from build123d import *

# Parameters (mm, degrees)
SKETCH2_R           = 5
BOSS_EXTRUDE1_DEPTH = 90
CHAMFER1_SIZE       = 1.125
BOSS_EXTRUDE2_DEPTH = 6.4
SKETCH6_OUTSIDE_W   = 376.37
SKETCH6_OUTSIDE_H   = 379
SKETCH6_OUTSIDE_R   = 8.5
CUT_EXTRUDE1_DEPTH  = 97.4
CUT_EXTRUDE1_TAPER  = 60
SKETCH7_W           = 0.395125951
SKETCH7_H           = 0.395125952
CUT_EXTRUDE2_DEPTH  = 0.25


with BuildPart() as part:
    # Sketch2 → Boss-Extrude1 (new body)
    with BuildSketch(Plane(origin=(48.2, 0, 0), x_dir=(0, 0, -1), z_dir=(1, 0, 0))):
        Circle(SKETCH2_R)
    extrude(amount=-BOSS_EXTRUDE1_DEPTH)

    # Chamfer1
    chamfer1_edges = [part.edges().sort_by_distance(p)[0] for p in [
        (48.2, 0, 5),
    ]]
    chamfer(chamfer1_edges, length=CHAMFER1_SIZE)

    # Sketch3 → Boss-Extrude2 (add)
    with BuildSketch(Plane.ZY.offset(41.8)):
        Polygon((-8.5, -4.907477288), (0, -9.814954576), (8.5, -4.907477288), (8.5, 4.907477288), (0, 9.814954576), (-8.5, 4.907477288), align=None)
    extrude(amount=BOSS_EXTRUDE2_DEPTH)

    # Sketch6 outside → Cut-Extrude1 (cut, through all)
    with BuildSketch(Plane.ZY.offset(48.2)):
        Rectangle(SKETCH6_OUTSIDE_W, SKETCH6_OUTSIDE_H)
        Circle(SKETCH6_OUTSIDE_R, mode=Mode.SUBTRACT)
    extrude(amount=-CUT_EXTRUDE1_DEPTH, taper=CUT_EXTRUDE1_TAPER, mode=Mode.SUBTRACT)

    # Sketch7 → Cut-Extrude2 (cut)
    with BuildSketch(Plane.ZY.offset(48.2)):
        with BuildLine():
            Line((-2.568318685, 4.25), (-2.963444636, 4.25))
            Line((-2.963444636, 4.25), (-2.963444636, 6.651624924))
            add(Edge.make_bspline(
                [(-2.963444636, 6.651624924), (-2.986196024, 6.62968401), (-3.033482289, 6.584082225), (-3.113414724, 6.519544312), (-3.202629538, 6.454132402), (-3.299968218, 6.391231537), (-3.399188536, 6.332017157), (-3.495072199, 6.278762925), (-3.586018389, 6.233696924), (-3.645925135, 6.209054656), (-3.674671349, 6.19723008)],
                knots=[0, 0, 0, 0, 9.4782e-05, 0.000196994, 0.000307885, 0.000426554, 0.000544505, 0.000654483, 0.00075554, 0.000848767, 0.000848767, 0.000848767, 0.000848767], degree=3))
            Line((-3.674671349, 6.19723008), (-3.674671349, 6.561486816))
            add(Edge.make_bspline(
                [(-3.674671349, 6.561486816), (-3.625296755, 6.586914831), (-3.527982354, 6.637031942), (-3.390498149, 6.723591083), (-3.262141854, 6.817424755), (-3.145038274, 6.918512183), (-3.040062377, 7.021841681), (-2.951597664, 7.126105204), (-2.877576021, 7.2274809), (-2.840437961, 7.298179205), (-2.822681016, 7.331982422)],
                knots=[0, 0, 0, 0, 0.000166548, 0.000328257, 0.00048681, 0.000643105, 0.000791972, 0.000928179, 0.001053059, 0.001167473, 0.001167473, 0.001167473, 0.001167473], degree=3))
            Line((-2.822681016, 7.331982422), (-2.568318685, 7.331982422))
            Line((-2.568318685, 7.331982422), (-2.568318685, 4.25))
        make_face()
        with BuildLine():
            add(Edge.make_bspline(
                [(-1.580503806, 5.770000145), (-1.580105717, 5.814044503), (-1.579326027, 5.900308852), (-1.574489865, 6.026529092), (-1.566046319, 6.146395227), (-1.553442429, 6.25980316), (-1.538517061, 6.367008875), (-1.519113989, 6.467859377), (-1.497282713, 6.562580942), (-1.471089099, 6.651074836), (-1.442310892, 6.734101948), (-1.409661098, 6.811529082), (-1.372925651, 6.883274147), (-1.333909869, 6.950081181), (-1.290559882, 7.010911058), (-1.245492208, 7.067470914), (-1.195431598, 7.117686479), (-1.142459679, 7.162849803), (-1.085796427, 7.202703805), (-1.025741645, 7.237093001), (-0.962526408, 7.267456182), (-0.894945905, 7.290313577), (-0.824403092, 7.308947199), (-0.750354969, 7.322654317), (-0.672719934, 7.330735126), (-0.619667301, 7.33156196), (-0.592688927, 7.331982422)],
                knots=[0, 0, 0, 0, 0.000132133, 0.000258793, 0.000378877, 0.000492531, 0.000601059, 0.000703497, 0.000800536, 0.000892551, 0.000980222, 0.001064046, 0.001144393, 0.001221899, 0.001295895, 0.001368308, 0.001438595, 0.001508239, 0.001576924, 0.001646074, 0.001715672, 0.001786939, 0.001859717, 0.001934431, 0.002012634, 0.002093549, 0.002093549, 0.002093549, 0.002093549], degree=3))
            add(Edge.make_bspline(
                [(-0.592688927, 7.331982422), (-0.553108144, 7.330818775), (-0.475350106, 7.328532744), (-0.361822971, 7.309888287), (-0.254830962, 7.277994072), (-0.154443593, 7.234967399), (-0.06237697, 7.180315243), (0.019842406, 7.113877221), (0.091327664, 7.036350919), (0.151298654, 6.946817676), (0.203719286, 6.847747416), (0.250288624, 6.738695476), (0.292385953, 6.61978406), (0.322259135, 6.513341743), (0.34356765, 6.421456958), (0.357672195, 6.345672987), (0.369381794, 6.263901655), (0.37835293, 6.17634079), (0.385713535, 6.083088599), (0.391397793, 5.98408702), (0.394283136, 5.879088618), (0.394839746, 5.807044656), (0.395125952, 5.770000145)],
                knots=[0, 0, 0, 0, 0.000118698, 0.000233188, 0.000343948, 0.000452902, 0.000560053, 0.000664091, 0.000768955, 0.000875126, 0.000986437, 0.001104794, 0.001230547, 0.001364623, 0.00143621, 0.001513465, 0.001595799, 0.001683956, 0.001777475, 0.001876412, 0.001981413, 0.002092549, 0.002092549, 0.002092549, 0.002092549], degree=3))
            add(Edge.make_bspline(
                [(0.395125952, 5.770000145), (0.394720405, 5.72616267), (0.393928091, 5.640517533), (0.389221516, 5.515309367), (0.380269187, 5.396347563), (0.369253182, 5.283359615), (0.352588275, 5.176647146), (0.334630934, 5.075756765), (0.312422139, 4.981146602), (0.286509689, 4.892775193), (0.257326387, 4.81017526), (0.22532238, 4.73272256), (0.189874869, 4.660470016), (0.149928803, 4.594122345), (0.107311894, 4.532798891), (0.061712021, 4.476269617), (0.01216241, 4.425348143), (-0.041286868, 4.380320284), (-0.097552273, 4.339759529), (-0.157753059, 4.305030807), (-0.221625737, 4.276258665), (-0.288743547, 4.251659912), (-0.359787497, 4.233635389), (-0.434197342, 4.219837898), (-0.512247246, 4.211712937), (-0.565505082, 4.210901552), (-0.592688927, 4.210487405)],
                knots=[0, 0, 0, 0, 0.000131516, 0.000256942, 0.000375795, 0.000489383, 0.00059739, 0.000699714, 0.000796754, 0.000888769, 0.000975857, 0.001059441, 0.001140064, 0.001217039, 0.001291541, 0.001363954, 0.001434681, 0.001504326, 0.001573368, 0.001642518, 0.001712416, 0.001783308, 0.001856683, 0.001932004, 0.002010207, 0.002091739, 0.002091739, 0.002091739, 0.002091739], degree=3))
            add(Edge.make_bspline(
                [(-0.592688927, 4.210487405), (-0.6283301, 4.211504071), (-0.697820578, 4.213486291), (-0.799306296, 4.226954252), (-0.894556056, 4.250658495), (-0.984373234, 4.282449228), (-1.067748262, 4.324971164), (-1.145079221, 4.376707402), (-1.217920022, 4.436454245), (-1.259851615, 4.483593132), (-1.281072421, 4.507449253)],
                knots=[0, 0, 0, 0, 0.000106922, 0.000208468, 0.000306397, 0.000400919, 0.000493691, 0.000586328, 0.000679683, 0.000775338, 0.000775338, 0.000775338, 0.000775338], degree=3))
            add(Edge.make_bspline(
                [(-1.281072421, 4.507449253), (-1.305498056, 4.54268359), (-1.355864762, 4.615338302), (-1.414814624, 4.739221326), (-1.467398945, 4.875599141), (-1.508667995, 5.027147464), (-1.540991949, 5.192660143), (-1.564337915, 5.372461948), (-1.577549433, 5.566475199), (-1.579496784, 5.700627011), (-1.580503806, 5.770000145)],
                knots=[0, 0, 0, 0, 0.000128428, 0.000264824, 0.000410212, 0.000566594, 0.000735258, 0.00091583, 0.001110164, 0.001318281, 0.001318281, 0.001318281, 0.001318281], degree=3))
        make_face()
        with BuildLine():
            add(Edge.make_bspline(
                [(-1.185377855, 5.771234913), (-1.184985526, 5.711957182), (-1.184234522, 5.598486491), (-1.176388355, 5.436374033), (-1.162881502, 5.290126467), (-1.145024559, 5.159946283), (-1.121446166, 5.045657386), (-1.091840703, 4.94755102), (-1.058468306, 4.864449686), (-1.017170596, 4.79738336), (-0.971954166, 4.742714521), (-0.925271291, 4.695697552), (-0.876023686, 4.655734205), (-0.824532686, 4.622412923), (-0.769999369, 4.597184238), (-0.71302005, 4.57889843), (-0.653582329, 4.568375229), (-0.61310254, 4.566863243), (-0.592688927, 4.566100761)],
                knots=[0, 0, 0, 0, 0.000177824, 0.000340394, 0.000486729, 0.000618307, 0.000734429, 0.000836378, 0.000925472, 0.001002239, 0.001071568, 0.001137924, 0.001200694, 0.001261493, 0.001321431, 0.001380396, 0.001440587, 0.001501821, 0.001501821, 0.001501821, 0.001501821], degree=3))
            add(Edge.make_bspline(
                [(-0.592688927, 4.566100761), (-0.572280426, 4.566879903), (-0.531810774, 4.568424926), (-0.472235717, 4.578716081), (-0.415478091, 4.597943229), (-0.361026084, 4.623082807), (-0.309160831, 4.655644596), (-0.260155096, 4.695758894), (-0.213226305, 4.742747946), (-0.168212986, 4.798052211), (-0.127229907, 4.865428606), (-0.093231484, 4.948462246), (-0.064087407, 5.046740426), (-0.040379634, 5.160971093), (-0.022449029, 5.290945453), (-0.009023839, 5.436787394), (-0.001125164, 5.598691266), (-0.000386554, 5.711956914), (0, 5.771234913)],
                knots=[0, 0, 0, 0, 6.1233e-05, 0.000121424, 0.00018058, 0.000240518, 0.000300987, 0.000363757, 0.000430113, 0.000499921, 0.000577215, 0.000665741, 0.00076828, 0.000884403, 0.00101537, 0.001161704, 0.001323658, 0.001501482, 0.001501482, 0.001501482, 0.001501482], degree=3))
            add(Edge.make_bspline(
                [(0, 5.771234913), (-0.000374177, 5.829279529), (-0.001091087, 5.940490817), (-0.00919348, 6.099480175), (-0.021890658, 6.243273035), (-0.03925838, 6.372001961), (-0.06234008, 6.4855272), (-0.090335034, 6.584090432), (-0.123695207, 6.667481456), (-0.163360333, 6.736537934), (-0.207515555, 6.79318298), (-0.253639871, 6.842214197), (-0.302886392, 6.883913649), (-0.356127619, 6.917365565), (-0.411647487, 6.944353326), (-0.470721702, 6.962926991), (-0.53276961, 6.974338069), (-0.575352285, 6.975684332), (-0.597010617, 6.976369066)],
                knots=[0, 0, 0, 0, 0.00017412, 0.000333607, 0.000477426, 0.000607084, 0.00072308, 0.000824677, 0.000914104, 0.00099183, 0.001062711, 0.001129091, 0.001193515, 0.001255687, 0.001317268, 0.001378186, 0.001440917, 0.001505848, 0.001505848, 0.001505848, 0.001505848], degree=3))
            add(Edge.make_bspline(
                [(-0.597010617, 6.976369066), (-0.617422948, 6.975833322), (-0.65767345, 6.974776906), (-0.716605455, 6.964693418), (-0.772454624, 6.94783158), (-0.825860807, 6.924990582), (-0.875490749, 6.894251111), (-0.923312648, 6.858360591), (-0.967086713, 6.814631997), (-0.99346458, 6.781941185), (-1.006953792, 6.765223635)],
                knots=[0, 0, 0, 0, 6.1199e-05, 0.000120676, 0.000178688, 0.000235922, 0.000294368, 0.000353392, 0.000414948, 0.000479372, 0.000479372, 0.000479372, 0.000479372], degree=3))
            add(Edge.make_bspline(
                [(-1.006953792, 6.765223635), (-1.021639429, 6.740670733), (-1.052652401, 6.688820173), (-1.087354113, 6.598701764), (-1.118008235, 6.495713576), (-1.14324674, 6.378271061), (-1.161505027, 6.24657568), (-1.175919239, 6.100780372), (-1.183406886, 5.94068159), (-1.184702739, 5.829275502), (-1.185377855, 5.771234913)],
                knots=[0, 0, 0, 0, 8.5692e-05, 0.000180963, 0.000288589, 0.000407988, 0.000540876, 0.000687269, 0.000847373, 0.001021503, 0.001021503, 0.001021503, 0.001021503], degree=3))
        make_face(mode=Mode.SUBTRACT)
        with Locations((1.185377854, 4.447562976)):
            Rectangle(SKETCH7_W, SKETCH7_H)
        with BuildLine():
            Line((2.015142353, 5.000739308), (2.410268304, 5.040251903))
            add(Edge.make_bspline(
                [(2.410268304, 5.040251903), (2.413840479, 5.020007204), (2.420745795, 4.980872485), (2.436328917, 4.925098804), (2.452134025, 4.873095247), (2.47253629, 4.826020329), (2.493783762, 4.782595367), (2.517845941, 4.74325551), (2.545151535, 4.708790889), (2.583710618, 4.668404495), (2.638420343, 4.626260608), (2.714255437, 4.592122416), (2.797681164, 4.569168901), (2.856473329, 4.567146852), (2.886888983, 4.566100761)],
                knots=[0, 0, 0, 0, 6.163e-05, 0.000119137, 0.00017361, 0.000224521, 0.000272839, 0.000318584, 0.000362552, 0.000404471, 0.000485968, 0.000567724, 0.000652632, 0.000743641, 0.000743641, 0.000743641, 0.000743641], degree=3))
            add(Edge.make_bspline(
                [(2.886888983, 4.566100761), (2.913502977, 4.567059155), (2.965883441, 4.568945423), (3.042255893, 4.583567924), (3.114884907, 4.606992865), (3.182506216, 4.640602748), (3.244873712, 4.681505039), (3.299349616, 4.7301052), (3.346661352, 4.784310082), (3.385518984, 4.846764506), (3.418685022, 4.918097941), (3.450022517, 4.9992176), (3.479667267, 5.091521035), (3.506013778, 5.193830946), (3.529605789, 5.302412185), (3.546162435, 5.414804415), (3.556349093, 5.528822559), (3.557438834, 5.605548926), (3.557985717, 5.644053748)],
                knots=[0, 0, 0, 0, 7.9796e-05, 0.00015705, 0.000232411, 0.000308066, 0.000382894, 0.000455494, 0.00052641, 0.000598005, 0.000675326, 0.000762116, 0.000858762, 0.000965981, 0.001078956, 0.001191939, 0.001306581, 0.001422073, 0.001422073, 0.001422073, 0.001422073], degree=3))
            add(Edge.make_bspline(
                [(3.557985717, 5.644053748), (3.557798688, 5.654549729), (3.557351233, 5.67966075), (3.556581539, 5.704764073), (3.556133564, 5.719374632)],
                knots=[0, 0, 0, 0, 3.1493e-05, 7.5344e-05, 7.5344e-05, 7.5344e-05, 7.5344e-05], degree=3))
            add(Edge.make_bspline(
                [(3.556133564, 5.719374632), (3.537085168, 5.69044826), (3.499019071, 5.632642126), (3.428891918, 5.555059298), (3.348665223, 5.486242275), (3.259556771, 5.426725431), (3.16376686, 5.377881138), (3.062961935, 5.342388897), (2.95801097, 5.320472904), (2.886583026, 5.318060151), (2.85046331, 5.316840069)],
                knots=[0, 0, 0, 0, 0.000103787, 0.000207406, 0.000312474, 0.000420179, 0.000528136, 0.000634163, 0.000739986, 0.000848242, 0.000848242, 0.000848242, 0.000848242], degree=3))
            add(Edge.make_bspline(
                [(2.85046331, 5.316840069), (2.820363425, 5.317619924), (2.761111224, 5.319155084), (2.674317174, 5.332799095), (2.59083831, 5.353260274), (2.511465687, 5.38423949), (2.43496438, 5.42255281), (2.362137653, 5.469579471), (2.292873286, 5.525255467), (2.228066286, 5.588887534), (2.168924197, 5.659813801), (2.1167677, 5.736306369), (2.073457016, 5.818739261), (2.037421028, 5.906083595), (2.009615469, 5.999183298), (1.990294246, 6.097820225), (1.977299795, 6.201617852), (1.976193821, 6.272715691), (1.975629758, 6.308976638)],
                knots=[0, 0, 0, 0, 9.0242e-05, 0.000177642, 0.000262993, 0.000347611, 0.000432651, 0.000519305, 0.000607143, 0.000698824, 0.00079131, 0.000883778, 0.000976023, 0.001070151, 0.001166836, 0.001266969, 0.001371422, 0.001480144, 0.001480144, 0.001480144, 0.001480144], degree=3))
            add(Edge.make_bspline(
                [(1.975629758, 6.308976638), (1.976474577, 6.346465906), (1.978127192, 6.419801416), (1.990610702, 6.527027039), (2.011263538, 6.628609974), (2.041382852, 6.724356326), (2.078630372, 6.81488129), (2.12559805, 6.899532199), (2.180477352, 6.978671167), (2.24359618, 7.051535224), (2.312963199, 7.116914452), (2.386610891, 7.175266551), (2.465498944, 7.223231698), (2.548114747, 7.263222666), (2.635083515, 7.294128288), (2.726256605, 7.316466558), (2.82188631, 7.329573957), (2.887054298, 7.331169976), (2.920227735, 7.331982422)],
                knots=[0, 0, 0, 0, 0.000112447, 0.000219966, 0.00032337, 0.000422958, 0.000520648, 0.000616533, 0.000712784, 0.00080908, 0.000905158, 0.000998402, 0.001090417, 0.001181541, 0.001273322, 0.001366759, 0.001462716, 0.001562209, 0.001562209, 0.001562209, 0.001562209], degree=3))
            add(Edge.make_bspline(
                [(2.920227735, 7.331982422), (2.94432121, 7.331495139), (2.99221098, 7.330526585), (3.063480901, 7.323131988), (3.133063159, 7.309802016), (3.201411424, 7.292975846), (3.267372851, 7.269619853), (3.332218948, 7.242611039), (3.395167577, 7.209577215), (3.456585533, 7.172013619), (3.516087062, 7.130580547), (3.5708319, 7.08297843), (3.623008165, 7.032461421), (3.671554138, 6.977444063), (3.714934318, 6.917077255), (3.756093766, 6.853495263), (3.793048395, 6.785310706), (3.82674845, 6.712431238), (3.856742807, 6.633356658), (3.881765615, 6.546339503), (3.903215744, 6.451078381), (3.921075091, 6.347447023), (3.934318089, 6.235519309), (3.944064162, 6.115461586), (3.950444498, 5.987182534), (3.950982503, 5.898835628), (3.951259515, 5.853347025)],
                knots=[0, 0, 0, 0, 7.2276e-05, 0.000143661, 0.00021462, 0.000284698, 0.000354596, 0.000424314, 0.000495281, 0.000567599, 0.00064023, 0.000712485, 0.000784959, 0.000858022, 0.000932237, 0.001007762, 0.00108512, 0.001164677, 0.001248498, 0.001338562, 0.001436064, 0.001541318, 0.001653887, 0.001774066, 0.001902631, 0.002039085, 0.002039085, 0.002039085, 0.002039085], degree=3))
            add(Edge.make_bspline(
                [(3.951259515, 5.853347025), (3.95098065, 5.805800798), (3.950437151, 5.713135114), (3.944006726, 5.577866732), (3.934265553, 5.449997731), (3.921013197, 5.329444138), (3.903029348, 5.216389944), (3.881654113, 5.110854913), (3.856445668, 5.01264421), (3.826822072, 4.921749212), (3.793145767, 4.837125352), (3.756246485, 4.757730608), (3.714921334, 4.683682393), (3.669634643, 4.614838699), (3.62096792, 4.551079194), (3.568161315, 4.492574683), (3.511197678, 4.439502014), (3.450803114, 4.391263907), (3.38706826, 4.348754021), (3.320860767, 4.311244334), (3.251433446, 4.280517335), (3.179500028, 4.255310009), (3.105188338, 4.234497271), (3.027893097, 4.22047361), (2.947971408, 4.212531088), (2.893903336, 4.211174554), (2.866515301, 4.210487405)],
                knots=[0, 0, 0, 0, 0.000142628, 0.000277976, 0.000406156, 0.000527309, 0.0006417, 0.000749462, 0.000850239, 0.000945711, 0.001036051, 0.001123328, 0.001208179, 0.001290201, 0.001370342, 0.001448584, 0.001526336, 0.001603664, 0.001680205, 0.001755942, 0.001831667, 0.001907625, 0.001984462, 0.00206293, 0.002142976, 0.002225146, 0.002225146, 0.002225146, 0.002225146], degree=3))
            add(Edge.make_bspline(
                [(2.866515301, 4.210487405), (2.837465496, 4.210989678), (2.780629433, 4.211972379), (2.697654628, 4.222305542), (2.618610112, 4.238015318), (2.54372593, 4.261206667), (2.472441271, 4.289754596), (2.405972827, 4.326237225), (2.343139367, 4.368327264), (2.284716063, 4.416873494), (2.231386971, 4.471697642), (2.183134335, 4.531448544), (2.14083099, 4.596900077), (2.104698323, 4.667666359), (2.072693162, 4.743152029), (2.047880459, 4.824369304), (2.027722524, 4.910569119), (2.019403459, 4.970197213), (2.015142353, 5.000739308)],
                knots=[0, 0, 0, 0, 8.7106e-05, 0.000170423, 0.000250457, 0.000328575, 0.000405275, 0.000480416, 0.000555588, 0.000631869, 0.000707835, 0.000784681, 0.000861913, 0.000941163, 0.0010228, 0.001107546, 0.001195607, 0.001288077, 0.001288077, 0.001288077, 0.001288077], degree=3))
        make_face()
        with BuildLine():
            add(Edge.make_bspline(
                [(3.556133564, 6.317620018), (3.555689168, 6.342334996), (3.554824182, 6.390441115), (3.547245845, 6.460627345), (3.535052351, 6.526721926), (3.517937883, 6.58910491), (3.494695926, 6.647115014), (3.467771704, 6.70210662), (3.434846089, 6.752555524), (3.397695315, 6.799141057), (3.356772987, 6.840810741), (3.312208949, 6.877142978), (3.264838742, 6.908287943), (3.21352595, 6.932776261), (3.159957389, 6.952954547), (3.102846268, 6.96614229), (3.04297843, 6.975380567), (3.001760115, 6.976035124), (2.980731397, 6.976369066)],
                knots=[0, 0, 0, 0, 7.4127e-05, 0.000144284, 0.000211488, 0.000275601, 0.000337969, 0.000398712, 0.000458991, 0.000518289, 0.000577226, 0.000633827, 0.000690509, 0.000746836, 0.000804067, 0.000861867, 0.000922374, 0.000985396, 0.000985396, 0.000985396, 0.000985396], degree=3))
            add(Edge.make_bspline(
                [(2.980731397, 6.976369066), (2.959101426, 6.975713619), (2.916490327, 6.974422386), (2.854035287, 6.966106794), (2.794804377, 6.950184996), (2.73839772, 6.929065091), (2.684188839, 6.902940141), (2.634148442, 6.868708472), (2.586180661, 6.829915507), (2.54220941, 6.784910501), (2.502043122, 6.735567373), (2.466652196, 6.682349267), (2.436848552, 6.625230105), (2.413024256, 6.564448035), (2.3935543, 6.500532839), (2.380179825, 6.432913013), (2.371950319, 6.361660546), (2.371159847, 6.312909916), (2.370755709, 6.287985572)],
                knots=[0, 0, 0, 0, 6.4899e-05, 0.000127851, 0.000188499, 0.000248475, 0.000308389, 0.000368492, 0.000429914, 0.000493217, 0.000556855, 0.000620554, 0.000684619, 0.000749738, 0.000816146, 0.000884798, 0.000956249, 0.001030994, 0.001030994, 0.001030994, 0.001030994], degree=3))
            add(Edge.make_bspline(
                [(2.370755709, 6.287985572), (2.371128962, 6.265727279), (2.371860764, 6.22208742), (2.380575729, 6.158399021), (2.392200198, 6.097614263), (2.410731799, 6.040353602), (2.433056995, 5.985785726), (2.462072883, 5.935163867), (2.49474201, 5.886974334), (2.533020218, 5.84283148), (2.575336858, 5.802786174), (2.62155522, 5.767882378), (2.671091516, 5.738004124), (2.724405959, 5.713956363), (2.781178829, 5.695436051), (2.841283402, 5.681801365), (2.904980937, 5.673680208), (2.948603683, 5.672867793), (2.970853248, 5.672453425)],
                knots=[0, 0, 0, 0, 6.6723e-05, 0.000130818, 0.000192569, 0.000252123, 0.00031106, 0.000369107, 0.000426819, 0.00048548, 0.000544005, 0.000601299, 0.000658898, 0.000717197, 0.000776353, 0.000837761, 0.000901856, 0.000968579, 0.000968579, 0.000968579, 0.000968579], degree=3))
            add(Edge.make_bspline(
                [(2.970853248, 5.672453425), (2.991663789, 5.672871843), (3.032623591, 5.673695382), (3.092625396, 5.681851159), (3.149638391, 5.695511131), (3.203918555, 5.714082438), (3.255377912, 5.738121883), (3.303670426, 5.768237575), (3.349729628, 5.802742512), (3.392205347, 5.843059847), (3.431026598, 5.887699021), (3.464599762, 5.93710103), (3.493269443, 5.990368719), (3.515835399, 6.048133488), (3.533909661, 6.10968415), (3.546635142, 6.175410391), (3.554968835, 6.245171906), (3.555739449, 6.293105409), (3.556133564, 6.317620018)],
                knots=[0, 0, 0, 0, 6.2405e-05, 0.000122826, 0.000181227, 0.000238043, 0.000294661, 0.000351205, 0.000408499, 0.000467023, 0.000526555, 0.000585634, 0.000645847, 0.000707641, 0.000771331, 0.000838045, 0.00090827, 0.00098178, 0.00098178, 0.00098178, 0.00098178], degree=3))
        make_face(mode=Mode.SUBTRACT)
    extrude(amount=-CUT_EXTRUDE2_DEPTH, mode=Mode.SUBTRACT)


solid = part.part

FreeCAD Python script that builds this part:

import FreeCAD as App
import Part
import Sketcher
Q = App.Units.Quantity


def edges_at(feature, points):
    """Names of the edges that pass closest to the given points."""
    edges = feature.Shape.Edges
    near = lambda p: min(range(len(edges)), key=lambda i: edges[i].distToShape(Part.Vertex(*p))[0])
    return sorted({f"Edge{near(p) + 1}" for p in points})

doc = App.newDocument("Part")
body = doc.addObject("PartDesign::Body", "Body")

# Sketch on YZ plane
sketch1 = body.newObject("Sketcher::SketchObject", "Sketch")
sketch1.AttachmentSupport = (doc.getObject("YZ_Plane"), [""])
sketch1.MapMode = "FlatFace"
sketch1.AttachmentOffset = App.Placement(App.Vector(0, 0, 48.2), App.Rotation())
sketch1.addGeometry(Part.Circle(App.Vector(0, 0, 0), App.Vector(0, 0, 1), 5), False)
sketch1.addConstraint(Sketcher.Constraint("Coincident", 0, 3, -1, 1))
sketch1.addConstraint(Sketcher.Constraint("Diameter", 0, 10.0))
pad1 = body.newObject("PartDesign::Pad", "Pad")
pad1.Profile = sketch1
pad1.Length = 90
pad1.Reversed = True
doc.recompute()

chamfer = body.newObject("PartDesign::Chamfer", "Chamfer")
chamfer.Base = (pad1, edges_at(pad1, [(48.2, 0, 5)]))
chamfer.Size = 1.125

# Sketch on YZ plane
sketch2 = body.newObject("Sketcher::SketchObject", "Sketch001")
sketch2.AttachmentSupport = (doc.getObject("YZ_Plane"), [""])
sketch2.MapMode = "FlatFace"
sketch2.AttachmentOffset = App.Placement(App.Vector(0, 0, -41.8), App.Rotation())
sketch2.addGeometry(Part.LineSegment(App.Vector(-5, -8, 0), App.Vector(-10, 0, 0)), False)
sketch2.addGeometry(Part.LineSegment(App.Vector(-10, 0, 0), App.Vector(-5, 8, 0)), False)
sketch2.addGeometry(Part.LineSegment(App.Vector(-5, 8, 0), App.Vector(5, 8, 0)), False)
sketch2.addGeometry(Part.LineSegment(App.Vector(5, 8, 0), App.Vector(10, 0, 0)), False)
sketch2.addGeometry(Part.LineSegment(App.Vector(10, 0, 0), App.Vector(5, -8, 0)), False)
sketch2.addGeometry(Part.LineSegment(App.Vector(5, -8, 0), App.Vector(-5, -8, 0)), False)
sketch2.addConstraint(Sketcher.Constraint("Coincident", 0, 2, 1, 1))
sketch2.addConstraint(Sketcher.Constraint("Coincident", 1, 2, 2, 1))
sketch2.addConstraint(Sketcher.Constraint("Coincident", 2, 2, 3, 1))
sketch2.addConstraint(Sketcher.Constraint("Coincident", 3, 2, 4, 1))
sketch2.addConstraint(Sketcher.Constraint("Coincident", 4, 2, 5, 1))
sketch2.addConstraint(Sketcher.Constraint("Coincident", 5, 2, 0, 1))
sketch2.addConstraint(Sketcher.Constraint("Horizontal", 2))
sketch2.addConstraint(Sketcher.Constraint("Horizontal", 5))
sketch2.addConstraint(Sketcher.Constraint("Symmetric", 0, 2, 3, 2, -1, 1))
sketch2.addConstraint(Sketcher.Constraint("Symmetric", 1, 2, 4, 2, -1, 1))
sketch2.addConstraint(Sketcher.Constraint("PointOnObject", 0, 2, -1))
sketch2.addConstraint(Sketcher.Constraint("Parallel", 0, 3))
sketch2.addConstraint(Sketcher.Constraint("Vertical", 2, 2, 4, 2))
sketch2.addConstraint(Sketcher.Constraint("Angle", 0, Q("120 deg")))
sketch2.addConstraint(Sketcher.Constraint("DistanceY", 4, 2, 2, 2, 17.0))
sketch2.addConstraint(Sketcher.Constraint("DistanceX", 2, 1, 2, 2, 9.814955))
pad2 = body.newObject("PartDesign::Pad", "Pad001")
pad2.Profile = sketch2
pad2.Length = 6.4
pad2.Reversed = True

# Sketch on YZ plane
sketch3 = body.newObject("Sketcher::SketchObject", "Sketch002")
sketch3.AttachmentSupport = (doc.getObject("YZ_Plane"), [""])
sketch3.MapMode = "FlatFace"
sketch3.AttachmentOffset = App.Placement(App.Vector(0, 0, -48.2), App.Rotation())
sketch3.addGeometry(Part.LineSegment(App.Vector(190, -188, 0), App.Vector(-190, -188, 0)), False)
sketch3.addGeometry(Part.LineSegment(App.Vector(-190, -188, 0), App.Vector(-190, 188, 0)), False)
sketch3.addGeometry(Part.LineSegment(App.Vector(-190, 188, 0), App.Vector(190, 188, 0)), False)
sketch3.addGeometry(Part.LineSegment(App.Vector(190, 188, 0), App.Vector(190, -188, 0)), False)
sketch3.addGeometry(Part.Circle(App.Vector(0, 0, 0), App.Vector(0, 0, 1), 8), False)
sketch3.addConstraint(Sketcher.Constraint("Coincident", 0, 2, 1, 1))
sketch3.addConstraint(Sketcher.Constraint("Coincident", 1, 2, 2, 1))
sketch3.addConstraint(Sketcher.Constraint("Coincident", 2, 2, 3, 1))
sketch3.addConstraint(Sketcher.Constraint("Coincident", 3, 2, 0, 1))
sketch3.addConstraint(Sketcher.Constraint("Horizontal", 0))
sketch3.addConstraint(Sketcher.Constraint("Vertical", 1))
sketch3.addConstraint(Sketcher.Constraint("Horizontal", 2))
sketch3.addConstraint(Sketcher.Constraint("Vertical", 3))
sketch3.addConstraint(Sketcher.Constraint("Coincident", 4, 3, -1, 1))
sketch3.addConstraint(Sketcher.Constraint("Symmetric", 0, 2, 2, 2, -1, 1))
sketch3.addConstraint(Sketcher.Constraint("Diameter", 4, 17.0))
sketch3.addConstraint(Sketcher.Constraint("DistanceX", 0, 2, 0, 1, 379.0))
sketch3.addConstraint(Sketcher.Constraint("DistanceY", 1, 1, 1, 2, 376.37))
pocket1 = body.newObject("PartDesign::Pocket", "Pocket")
pocket1.Profile = sketch3
pocket1.Length = 97.4
pocket1.Reversed = True
pocket1.TaperAngle = 60

# Sketch on YZ plane
sketch4 = body.newObject("Sketcher::SketchObject", "Sketch003")
sketch4.AttachmentSupport = (doc.getObject("YZ_Plane"), [""])
sketch4.MapMode = "FlatFace"
sketch4.AttachmentOffset = App.Placement(App.Vector(0, 0, -48.2), App.Rotation())
sketch4.addGeometry(Part.LineSegment(App.Vector(4.25, -2.963445, 0), App.Vector(4.25, -2.568319, 0)), False)
sketch4.addGeometry(Part.LineSegment(App.Vector(4.25, -2.568319, 0), App.Vector(7.331982, -2.568319, 0)), False)
sketch4.addGeometry(Part.LineSegment(App.Vector(7.331982, -2.568319, 0), App.Vector(7.331982, -2.822681, 0)), False)
sketch4.addGeometry(Part.BSplineCurve([App.Vector(6.561487, -3.674671, 0), App.Vector(6.586915, -3.625297, 0), App.Vector(6.637032, -3.527982, 0), App.Vector(6.723591, -3.390498, 0), App.Vector(6.817425, -3.262142, 0), App.Vector(6.918512, -3.145038, 0), App.Vector(7.021842, -3.040062, 0), App.Vector(7.126105, -2.951598, 0), App.Vector(7.227481, -2.877576, 0), App.Vector(7.298179, -2.840438, 0), App.Vector(7.331982, -2.822681, 0)], [4, 1, 1, 1, 1, 1, 1, 1, 4], [0, 0.000166548, 0.000328257, 0.00048681, 0.000643105, 0.000791972, 0.000928179, 0.001053059, 0.001167473], False, 3, [1, 1, 1, 1, 1, 1, 1, 1, 1, 1, 1], False), False)
sketch4.addGeometry(Part.LineSegment(App.Vector(6.561487, -3.674671, 0), App.Vector(6.19723, -3.674671, 0)), False)
sketch4.addGeometry(Part.BSplineCurve([App.Vector(6.651625, -2.963445, 0), App.Vector(6.629684, -2.986196, 0), App.Vector(6.584082, -3.033482, 0), App.Vector(6.519544, -3.113415, 0), App.Vector(6.454132, -3.20263, 0), App.Vector(6.391232, -3.299968, 0), App.Vector(6.332017, -3.399189, 0), App.Vector(6.278763, -3.495072, 0), App.Vector(6.233697, -3.586018, 0), App.Vector(6.209055, -3.645925, 0), App.Vector(6.19723, -3.674671, 0)], [4, 1, 1, 1, 1, 1, 1, 1, 4], [0, 0.000094782, 0.000196994, 0.000307885, 0.000426554, 0.000544505, 0.000654483, 0.00075554, 0.000848767], False, 3, [1, 1, 1, 1, 1, 1, 1, 1, 1, 1, 1], False), False)
sketch4.addGeometry(Part.LineSegment(App.Vector(6.651625, -2.963445, 0), App.Vector(4.25, -2.963445, 0)), False)
sketch4.addGeometry(Part.BSplineCurve([App.Vector(5.77, -1.580504, 0), App.Vector(5.814045, -1.580106, 0), App.Vector(5.900309, -1.579326, 0), App.Vector(6.026529, -1.57449, 0), App.Vector(6.146395, -1.566046, 0), App.Vector(6.259803, -1.553442, 0), App.Vector(6.367009, -1.538517, 0), App.Vector(6.467859, -1.519114, 0), App.Vector(6.562581, -1.497283, 0), App.Vector(6.651075, -1.471089, 0), App.Vector(6.734102, -1.442311, 0), App.Vector(6.811529, -1.409661, 0), App.Vector(6.883274, -1.372926, 0), App.Vector(6.950081, -1.33391, 0), App.Vector(7.010911, -1.29056, 0), App.Vector(7.067471, -1.245492, 0), App.Vector(7.117686, -1.195432, 0), App.Vector(7.16285, -1.14246, 0), App.Vector(7.202704, -1.085796, 0), App.Vector(7.237093, -1.025742, 0), App.Vector(7.267456, -0.962526, 0), App.Vector(7.290314, -0.894946, 0), App.Vector(7.308947, -0.824403, 0), App.Vector(7.322654, -0.750355, 0), App.Vector(7.330735, -0.67272, 0), App.Vector(7.331562, -0.619667, 0), App.Vector(7.331982, -0.592689, 0)], [4, 1, 1, 1, 1, 1, 1, 1, 1, 1, 1, 1, 1, 1, 1, 1, 1, 1, 1, 1, 1, 1, 1, 1, 4], [0, 0.000132133, 0.000258793, 0.000378877, 0.000492531, 0.000601059, 0.000703497, 0.000800536, 0.000892551, 0.000980222, 0.001064046, 0.001144393, 0.001221899, 0.001295895, 0.001368308, 0.001438595, 0.001508239, 0.001576924, 0.001646074, 0.001715672, 0.001786939, 0.001859717, 0.001934431, 0.002012634, 0.002093549], False, 3, [1, 1, 1, 1, 1, 1, 1, 1, 1, 1, 1, 1, 1, 1, 1, 1, 1, 1, 1, 1, 1, 1, 1, 1, 1, 1, 1], False), False)
sketch4.addGeometry(Part.BSplineCurve([App.Vector(4.507449, -1.281072, 0), App.Vector(4.542684, -1.305498, 0), App.Vector(4.615338, -1.355865, 0), App.Vector(4.739221, -1.414815, 0), App.Vector(4.875599, -1.467399, 0), App.Vector(5.027147, -1.508668, 0), App.Vector(5.19266, -1.540992, 0), App.Vector(5.372462, -1.564338, 0), App.Vector(5.566475, -1.577549, 0), App.Vector(5.700627, -1.579497, 0), App.Vector(5.77, -1.580504, 0)], [4, 1, 1, 1, 1, 1, 1, 1, 4], [0, 0.000128428, 0.000264824, 0.000410212, 0.000566594, 0.000735258, 0.00091583, 0.001110164, 0.001318281], False, 3, [1, 1, 1, 1, 1, 1, 1, 1, 1, 1, 1], False), False)
sketch4.addGeometry(Part.BSplineCurve([App.Vector(4.210487, -0.592689, 0), App.Vector(4.211504, -0.62833, 0), App.Vector(4.213486, -0.697821, 0), App.Vector(4.226954, -0.799306, 0), App.Vector(4.250658, -0.894556, 0), App.Vector(4.282449, -0.984373, 0), App.Vector(4.324971, -1.067748, 0), App.Vector(4.376707, -1.145079, 0), App.Vector(4.436454, -1.21792, 0), App.Vector(4.483593, -1.259852, 0), App.Vector(4.507449, -1.281072, 0)], [4, 1, 1, 1, 1, 1, 1, 1, 4], [0, 0.000106922, 0.000208468, 0.000306397, 0.000400919, 0.000493691, 0.000586328, 0.000679683, 0.000775338], False, 3, [1, 1, 1, 1, 1, 1, 1, 1, 1, 1, 1], False), False)
sketch4.addGeometry(Part.BSplineCurve([App.Vector(5.77, 0.395126, 0), App.Vector(5.726163, 0.39472, 0), App.Vector(5.640518, 0.393928, 0), App.Vector(5.515309, 0.389222, 0), App.Vector(5.396348, 0.380269, 0), App.Vector(5.28336, 0.369253, 0), App.Vector(5.176647, 0.352588, 0), App.Vector(5.075757, 0.334631, 0), App.Vector(4.981147, 0.312422, 0), App.Vector(4.892775, 0.28651, 0), App.Vector(4.810175, 0.257326, 0), App.Vector(4.732723, 0.225322, 0), App.Vector(4.66047, 0.189875, 0), App.Vector(4.594122, 0.149929, 0), App.Vector(4.532799, 0.107312, 0), App.Vector(4.47627, 0.061712, 0), App.Vector(4.425348, 0.012162, 0), App.Vector(4.38032, -0.041287, 0), App.Vector(4.33976, -0.097552, 0), App.Vector(4.305031, -0.157753, 0), App.Vector(4.276259, -0.221626, 0), App.Vector(4.25166, -0.288744, 0), App.Vector(4.233635, -0.359787, 0), App.Vector(4.219838, -0.434197, 0), App.Vector(4.211713, -0.512247, 0), App.Vector(4.210902, -0.565505, 0), App.Vector(4.210487, -0.592689, 0)], [4, 1, 1, 1, 1, 1, 1, 1, 1, 1, 1, 1, 1, 1, 1, 1, 1, 1, 1, 1, 1, 1, 1, 1, 4], [0, 0.000131516, 0.000256942, 0.000375795, 0.000489383, 0.00059739, 0.000699714, 0.000796754, 0.000888769, 0.000975857, 0.001059441, 0.001140064, 0.001217039, 0.001291541, 0.001363954, 0.001434681, 0.001504326, 0.001573368, 0.001642518, 0.001712416, 0.001783308, 0.001856683, 0.001932004, 0.002010207, 0.002091739], False, 3, [1, 1, 1, 1, 1, 1, 1, 1, 1, 1, 1, 1, 1, 1, 1, 1, 1, 1, 1, 1, 1, 1, 1, 1, 1, 1, 1], False), False)
sketch4.addGeometry(Part.BSplineCurve([App.Vector(7.331982, -0.592689, 0), App.Vector(7.330819, -0.553108, 0), App.Vector(7.328533, -0.47535, 0), App.Vector(7.309888, -0.361823, 0), App.Vector(7.277994, -0.254831, 0), App.Vector(7.234967, -0.154444, 0), App.Vector(7.180315, -0.062377, 0), App.Vector(7.113877, 0.019842, 0), App.Vector(7.036351, 0.091328, 0), App.Vector(6.946818, 0.151299, 0), App.Vector(6.847747, 0.203719, 0), App.Vector(6.738695, 0.250289, 0), App.Vector(6.619784, 0.292386, 0), App.Vector(6.513342, 0.322259, 0), App.Vector(6.421457, 0.343568, 0), App.Vector(6.345673, 0.357672, 0), App.Vector(6.263902, 0.369382, 0), App.Vector(6.176341, 0.378353, 0), App.Vector(6.083089, 0.385714, 0), App.Vector(5.984087, 0.391398, 0), App.Vector(5.879089, 0.394283, 0), App.Vector(5.807045, 0.39484, 0), App.Vector(5.77, 0.395126, 0)], [4, 1, 1, 1, 1, 1, 1, 1, 1, 1, 1, 1, 1, 1, 1, 1, 1, 1, 1, 1, 4], [0, 0.000118698, 0.000233188, 0.000343948, 0.000452902, 0.000560053, 0.000664091, 0.000768955, 0.000875126, 0.000986437, 0.001104794, 0.001230547, 0.001364623, 0.00143621, 0.001513465, 0.001595799, 0.001683956, 0.001777475, 0.001876412, 0.001981413, 0.002092549], False, 3, [1, 1, 1, 1, 1, 1, 1, 1, 1, 1, 1, 1, 1, 1, 1, 1, 1, 1, 1, 1, 1, 1, 1], False), False)
sketch4.addGeometry(Part.BSplineCurve([App.Vector(6.765224, -1.006954, 0), App.Vector(6.740671, -1.021639, 0), App.Vector(6.68882, -1.052652, 0), App.Vector(6.598702, -1.087354, 0), App.Vector(6.495714, -1.118008, 0), App.Vector(6.378271, -1.143247, 0), App.Vector(6.246576, -1.161505, 0), App.Vector(6.10078, -1.175919, 0), App.Vector(5.940682, -1.183407, 0), App.Vector(5.829276, -1.184703, 0), App.Vector(5.771235, -1.185378, 0)], [4, 1, 1, 1, 1, 1, 1, 1, 4], [0, 0.000085692, 0.000180963, 0.000288589, 0.000407988, 0.000540876, 0.000687269, 0.000847373, 0.001021503], False, 3, [1, 1, 1, 1, 1, 1, 1, 1, 1, 1, 1], False), False)
sketch4.addGeometry(Part.BSplineCurve([App.Vector(6.976369, -0.597011, 0), App.Vector(6.975833, -0.617423, 0), App.Vector(6.974777, -0.657673, 0), App.Vector(6.964693, -0.716605, 0), App.Vector(6.947832, -0.772455, 0), App.Vector(6.924991, -0.825861, 0), App.Vector(6.894251, -0.875491, 0), App.Vector(6.858361, -0.923313, 0), App.Vector(6.814632, -0.967087, 0), App.Vector(6.781941, -0.993465, 0), App.Vector(6.765224, -1.006954, 0)], [4, 1, 1, 1, 1, 1, 1, 1, 4], [0, 0.000061199, 0.000120676, 0.000178688, 0.000235922, 0.000294368, 0.000353392, 0.000414948, 0.000479372], False, 3, [1, 1, 1, 1, 1, 1, 1, 1, 1, 1, 1], False), False)
sketch4.addGeometry(Part.BSplineCurve([App.Vector(5.771235, 0, 0), App.Vector(5.82928, -0.000374, 0), App.Vector(5.940491, -0.001091, 0), App.Vector(6.09948, -0.009193, 0), App.Vector(6.243273, -0.021891, 0), App.Vector(6.372002, -0.039258, 0), App.Vector(6.485527, -0.06234, 0), App.Vector(6.58409, -0.090335, 0), App.Vector(6.667481, -0.123695, 0), App.Vector(6.736538, -0.16336, 0), App.Vector(6.793183, -0.207516, 0), App.Vector(6.842214, -0.25364, 0), App.Vector(6.883914, -0.302886, 0), App.Vector(6.917366, -0.356128, 0), App.Vector(6.944353, -0.411647, 0), App.Vector(6.962927, -0.470722, 0), App.Vector(6.974338, -0.53277, 0), App.Vector(6.975684, -0.575352, 0), App.Vector(6.976369, -0.597011, 0)], [4, 1, 1, 1, 1, 1, 1, 1, 1, 1, 1, 1, 1, 1, 1, 1, 4], [0, 0.00017412, 0.000333607, 0.000477426, 0.000607084, 0.00072308, 0.000824677, 0.000914104, 0.00099183, 0.001062711, 0.001129091, 0.001193515, 0.001255687, 0.001317268, 0.001378186, 0.001440917, 0.001505848], False, 3, [1, 1, 1, 1, 1, 1, 1, 1, 1, 1, 1, 1, 1, 1, 1, 1, 1, 1, 1], False), False)
sketch4.addGeometry(Part.BSplineCurve([App.Vector(4.566101, -0.592689, 0), App.Vector(4.56688, -0.57228, 0), App.Vector(4.568425, -0.531811, 0), App.Vector(4.578716, -0.472236, 0), App.Vector(4.597943, -0.415478, 0), App.Vector(4.623083, -0.361026, 0), App.Vector(4.655645, -0.309161, 0), App.Vector(4.695759, -0.260155, 0), App.Vector(4.742748, -0.213226, 0), App.Vector(4.798052, -0.168213, 0), App.Vector(4.865429, -0.12723, 0), App.Vector(4.948462, -0.093231, 0), App.Vector(5.04674, -0.064087, 0), App.Vector(5.160971, -0.04038, 0), App.Vector(5.290945, -0.022449, 0), App.Vector(5.436787, -0.009024, 0), App.Vector(5.598691, -0.001125, 0), App.Vector(5.711957, -0.000387, 0), App.Vector(5.771235, 0, 0)], [4, 1, 1, 1, 1, 1, 1, 1, 1, 1, 1, 1, 1, 1, 1, 1, 4], [0, 0.000061233, 0.000121424, 0.00018058, 0.000240518, 0.000300987, 0.000363757, 0.000430113, 0.000499921, 0.000577215, 0.000665741, 0.00076828, 0.000884403, 0.00101537, 0.001161704, 0.001323658, 0.001501482], False, 3, [1, 1, 1, 1, 1, 1, 1, 1, 1, 1, 1, 1, 1, 1, 1, 1, 1, 1, 1], False), False)
sketch4.addGeometry(Part.BSplineCurve([App.Vector(5.771235, -1.185378, 0), App.Vector(5.711957, -1.184986, 0), App.Vector(5.598486, -1.184235, 0), App.Vector(5.436374, -1.176388, 0), App.Vector(5.290126, -1.162882, 0), App.Vector(5.159946, -1.145025, 0), App.Vector(5.045657, -1.121446, 0), App.Vector(4.947551, -1.091841, 0), App.Vector(4.86445, -1.058468, 0), App.Vector(4.797383, -1.017171, 0), App.Vector(4.742715, -0.971954, 0), App.Vector(4.695698, -0.925271, 0), App.Vector(4.655734, -0.876024, 0), App.Vector(4.622413, -0.824533, 0), App.Vector(4.597184, -0.769999, 0), App.Vector(4.578898, -0.71302, 0), App.Vector(4.568375, -0.653582, 0), App.Vector(4.566863, -0.613103, 0), App.Vector(4.566101, -0.592689, 0)], [4, 1, 1, 1, 1, 1, 1, 1, 1, 1, 1, 1, 1, 1, 1, 1, 4], [0, 0.000177824, 0.000340394, 0.000486729, 0.000618307, 0.000734429, 0.000836378, 0.000925472, 0.001002239, 0.001071568, 0.001137924, 0.001200694, 0.001261493, 0.001321431, 0.001380396, 0.001440587, 0.001501821], False, 3, [1, 1, 1, 1, 1, 1, 1, 1, 1, 1, 1, 1, 1, 1, 1, 1, 1, 1, 1], False), False)
sketch4.addGeometry(Part.LineSegment(App.Vector(4.645126, 0.987815, 0), App.Vector(4.25, 0.987815, 0)), False)
sketch4.addGeometry(Part.LineSegment(App.Vector(4.25, 0.987815, 0), App.Vector(4.25, 1.382941, 0)), False)
sketch4.addGeometry(Part.LineSegment(App.Vector(4.25, 1.382941, 0), App.Vector(4.645126, 1.382941, 0)), False)
sketch4.addGeometry(Part.LineSegment(App.Vector(4.645126, 1.382941, 0), App.Vector(4.645126, 0.987815, 0)), False)
sketch4.addGeometry(Part.LineSegment(App.Vector(5.040252, 2.410268, 0), App.Vector(5.000739, 2.015142, 0)), False)
sketch4.addGeometry(Part.BSplineCurve([App.Vector(4.210487, 2.866515, 0), App.Vector(4.21099, 2.837465, 0), App.Vector(4.211972, 2.780629, 0), App.Vector(4.222306, 2.697655, 0), App.Vector(4.238015, 2.61861, 0), App.Vector(4.261207, 2.543726, 0), App.Vector(4.289755, 2.472441, 0), App.Vector(4.326237, 2.405973, 0), App.Vector(4.368327, 2.343139, 0), App.Vector(4.416873, 2.284716, 0), App.Vector(4.471698, 2.231387, 0), App.Vector(4.531449, 2.183134, 0), App.Vector(4.5969, 2.140831, 0), App.Vector(4.667666, 2.104698, 0), App.Vector(4.743152, 2.072693, 0), App.Vector(4.824369, 2.04788, 0), App.Vector(4.910569, 2.027723, 0), App.Vector(4.970197, 2.019403, 0), App.Vector(5.000739, 2.015142, 0)], [4, 1, 1, 1, 1, 1, 1, 1, 1, 1, 1, 1, 1, 1, 1, 1, 4], [0, 0.000087106, 0.000170423, 0.000250457, 0.000328575, 0.000405275, 0.000480416, 0.000555588, 0.000631869, 0.000707835, 0.000784681, 0.000861913, 0.000941163, 0.0010228, 0.001107546, 0.001195607, 0.001288077], False, 3, [1, 1, 1, 1, 1, 1, 1, 1, 1, 1, 1, 1, 1, 1, 1, 1, 1, 1, 1], False), False)
sketch4.addGeometry(Part.BSplineCurve([App.Vector(5.853347, 3.95126, 0), App.Vector(5.805801, 3.950981, 0), App.Vector(5.713135, 3.950437, 0), App.Vector(5.577867, 3.944007, 0), App.Vector(5.449998, 3.934266, 0), App.Vector(5.329444, 3.921013, 0), App.Vector(5.21639, 3.903029, 0), App.Vector(5.110855, 3.881654, 0), App.Vector(5.012644, 3.856446, 0), App.Vector(4.921749, 3.826822, 0), App.Vector(4.837125, 3.793146, 0), App.Vector(4.757731, 3.756246, 0), App.Vector(4.683682, 3.714921, 0), App.Vector(4.614839, 3.669635, 0), App.Vector(4.551079, 3.620968, 0), App.Vector(4.492575, 3.568161, 0), App.Vector(4.439502, 3.511198, 0), App.Vector(4.391264, 3.450803, 0), App.Vector(4.348754, 3.387068, 0), App.Vector(4.311244, 3.320861, 0), App.Vector(4.280517, 3.251433, 0), App.Vector(4.25531, 3.1795, 0), App.Vector(4.234497, 3.105188, 0), App.Vector(4.220474, 3.027893, 0), App.Vector(4.212531, 2.947971, 0), App.Vector(4.211175, 2.893903, 0), App.Vector(4.210487, 2.866515, 0)], [4, 1, 1, 1, 1, 1, 1, 1, 1, 1, 1, 1, 1, 1, 1, 1, 1, 1, 1, 1, 1, 1, 1, 1, 4], [0, 0.000142628, 0.000277976, 0.000406156, 0.000527309, 0.0006417, 0.000749462, 0.000850239, 0.000945711, 0.001036051, 0.001123328, 0.001208179, 0.001290201, 0.001370342, 0.001448584, 0.001526336, 0.001603664, 0.001680205, 0.001755942, 0.001831667, 0.001907625, 0.001984462, 0.00206293, 0.002142976, 0.002225146], False, 3, [1, 1, 1, 1, 1, 1, 1, 1, 1, 1, 1, 1, 1, 1, 1, 1, 1, 1, 1, 1, 1, 1, 1, 1, 1, 1, 1], False), False)
sketch4.addGeometry(Part.BSplineCurve([App.Vector(7.331982, 2.920228, 0), App.Vector(7.331495, 2.944321, 0), App.Vector(7.330527, 2.992211, 0), App.Vector(7.323132, 3.063481, 0), App.Vector(7.309802, 3.133063, 0), App.Vector(7.292976, 3.201411, 0), App.Vector(7.26962, 3.267373, 0), App.Vector(7.242611, 3.332219, 0), App.Vector(7.209577, 3.395168, 0), App.Vector(7.172014, 3.456586, 0), App.Vector(7.130581, 3.516087, 0), App.Vector(7.082978, 3.570832, 0), App.Vector(7.032461, 3.623008, 0), App.Vector(6.977444, 3.671554, 0), App.Vector(6.917077, 3.714934, 0), App.Vector(6.853495, 3.756094, 0), App.Vector(6.785311, 3.793048, 0), App.Vector(6.712431, 3.826748, 0), App.Vector(6.633357, 3.856743, 0), App.Vector(6.54634, 3.881766, 0), App.Vector(6.451078, 3.903216, 0), App.Vector(6.347447, 3.921075, 0), App.Vector(6.235519, 3.934318, 0), App.Vector(6.115462, 3.944064, 0), App.Vector(5.987183, 3.950444, 0), App.Vector(5.898836, 3.950983, 0), App.Vector(5.853347, 3.95126, 0)], [4, 1, 1, 1, 1, 1, 1, 1, 1, 1, 1, 1, 1, 1, 1, 1, 1, 1, 1, 1, 1, 1, 1, 1, 4], [0, 0.000072276, 0.000143661, 0.00021462, 0.000284698, 0.000354596, 0.000424314, 0.000495281, 0.000567599, 0.00064023, 0.000712485, 0.000784959, 0.000858022, 0.000932237, 0.001007762, 0.00108512, 0.001164677, 0.001248498, 0.001338562, 0.001436064, 0.001541318, 0.001653887, 0.001774066, 0.001902631, 0.002039085], False, 3, [1, 1, 1, 1, 1, 1, 1, 1, 1, 1, 1, 1, 1, 1, 1, 1, 1, 1, 1, 1, 1, 1, 1, 1, 1, 1, 1], False), False)
sketch4.addGeometry(Part.BSplineCurve([App.Vector(6.308977, 1.97563, 0), App.Vector(6.346466, 1.976475, 0), App.Vector(6.419801, 1.978127, 0), App.Vector(6.527027, 1.990611, 0), App.Vector(6.62861, 2.011264, 0), App.Vector(6.724356, 2.041383, 0), App.Vector(6.814881, 2.07863, 0), App.Vector(6.899532, 2.125598, 0), App.Vector(6.978671, 2.180477, 0), App.Vector(7.051535, 2.243596, 0), App.Vector(7.116914, 2.312963, 0), App.Vector(7.175267, 2.386611, 0), App.Vector(7.223232, 2.465499, 0), App.Vector(7.263223, 2.548115, 0), App.Vector(7.294128, 2.635084, 0), App.Vector(7.316467, 2.726257, 0), App.Vector(7.329574, 2.821886, 0), App.Vector(7.33117, 2.887054, 0), App.Vector(7.331982, 2.920228, 0)], [4, 1, 1, 1, 1, 1, 1, 1, 1, 1, 1, 1, 1, 1, 1, 1, 4], [0, 0.000112447, 0.000219966, 0.00032337, 0.000422958, 0.000520648, 0.000616533, 0.000712784, 0.00080908, 0.000905158, 0.000998402, 0.001090417, 0.001181541, 0.001273322, 0.001366759, 0.001462716, 0.001562209], False, 3, [1, 1, 1, 1, 1, 1, 1, 1, 1, 1, 1, 1, 1, 1, 1, 1, 1, 1, 1], False), False)
sketch4.addGeometry(Part.BSplineCurve([App.Vector(5.31684, 2.850463, 0), App.Vector(5.31762, 2.820363, 0), App.Vector(5.319155, 2.761111, 0), App.Vector(5.332799, 2.674317, 0), App.Vector(5.35326, 2.590838, 0), App.Vector(5.384239, 2.511466, 0), App.Vector(5.422553, 2.434964, 0), App.Vector(5.469579, 2.362138, 0), App.Vector(5.525255, 2.292873, 0), App.Vector(5.588888, 2.228066, 0), App.Vector(5.659814, 2.168924, 0), App.Vector(5.736306, 2.116768, 0), App.Vector(5.818739, 2.073457, 0), App.Vector(5.906084, 2.037421, 0), App.Vector(5.999183, 2.009615, 0), App.Vector(6.09782, 1.990294, 0), App.Vector(6.201618, 1.9773, 0), App.Vector(6.272716, 1.976194, 0), App.Vector(6.308977, 1.97563, 0)], [4, 1, 1, 1, 1, 1, 1, 1, 1, 1, 1, 1, 1, 1, 1, 1, 4], [0, 0.000090242, 0.000177642, 0.000262993, 0.000347611, 0.000432651, 0.000519305, 0.000607143, 0.000698824, 0.00079131, 0.000883778, 0.000976023, 0.001070151, 0.001166836, 0.001266969, 0.001371422, 0.001480144], False, 3, [1, 1, 1, 1, 1, 1, 1, 1, 1, 1, 1, 1, 1, 1, 1, 1, 1, 1, 1], False), False)
sketch4.addGeometry(Part.BSplineCurve([App.Vector(5.719375, 3.556134, 0), App.Vector(5.690448, 3.537085, 0), App.Vector(5.632642, 3.499019, 0), App.Vector(5.555059, 3.428892, 0), App.Vector(5.486242, 3.348665, 0), App.Vector(5.426725, 3.259557, 0), App.Vector(5.377881, 3.163767, 0), App.Vector(5.342389, 3.062962, 0), App.Vector(5.320473, 2.958011, 0), App.Vector(5.31806, 2.886583, 0), App.Vector(5.31684, 2.850463, 0)], [4, 1, 1, 1, 1, 1, 1, 1, 4], [0, 0.000103787, 0.000207406, 0.000312474, 0.000420179, 0.000528136, 0.000634163, 0.000739986, 0.000848242], False, 3, [1, 1, 1, 1, 1, 1, 1, 1, 1, 1, 1], False), False)
sketch4.addGeometry(Part.BSplineCurve([App.Vector(5.644054, 3.557986, 0), App.Vector(5.65455, 3.557799, 0), App.Vector(5.679661, 3.557351, 0), App.Vector(5.704764, 3.556582, 0), App.Vector(5.719375, 3.556134, 0)], [4, 1, 4], [0, 0.000031493, 0.000075344], False, 3, [1, 1, 1, 1, 1], False), False)
sketch4.addGeometry(Part.BSplineCurve([App.Vector(4.566101, 2.886889, 0), App.Vector(4.567059, 2.913503, 0), App.Vector(4.568945, 2.965883, 0), App.Vector(4.583568, 3.042256, 0), App.Vector(4.606993, 3.114885, 0), App.Vector(4.640603, 3.182506, 0), App.Vector(4.681505, 3.244874, 0), App.Vector(4.730105, 3.29935, 0), App.Vector(4.78431, 3.346661, 0), App.Vector(4.846765, 3.385519, 0), App.Vector(4.918098, 3.418685, 0), App.Vector(4.999218, 3.450023, 0), App.Vector(5.091521, 3.479667, 0), App.Vector(5.193831, 3.506014, 0), App.Vector(5.302412, 3.529606, 0), App.Vector(5.414804, 3.546162, 0), App.Vector(5.528823, 3.556349, 0), App.Vector(5.605549, 3.557439, 0), App.Vector(5.644054, 3.557986, 0)], [4, 1, 1, 1, 1, 1, 1, 1, 1, 1, 1, 1, 1, 1, 1, 1, 4], [0, 0.000079796, 0.00015705, 0.000232411, 0.000308066, 0.000382894, 0.000455494, 0.00052641, 0.000598005, 0.000675326, 0.000762116, 0.000858762, 0.000965981, 0.001078956, 0.001191939, 0.001306581, 0.001422073], False, 3, [1, 1, 1, 1, 1, 1, 1, 1, 1, 1, 1, 1, 1, 1, 1, 1, 1, 1, 1], False), False)
sketch4.addGeometry(Part.BSplineCurve([App.Vector(5.040252, 2.410268, 0), App.Vector(5.020007, 2.41384, 0), App.Vector(4.980872, 2.420746, 0), App.Vector(4.925099, 2.436329, 0), App.Vector(4.873095, 2.452134, 0), App.Vector(4.82602, 2.472536, 0), App.Vector(4.782595, 2.493784, 0), App.Vector(4.743256, 2.517846, 0), App.Vector(4.708791, 2.545152, 0), App.Vector(4.668404, 2.583711, 0), App.Vector(4.626261, 2.63842, 0), App.Vector(4.592122, 2.714255, 0), App.Vector(4.569169, 2.797681, 0), App.Vector(4.567147, 2.856473, 0), App.Vector(4.566101, 2.886889, 0)], [4, 1, 1, 1, 1, 1, 1, 1, 1, 1, 1, 1, 4], [0, 0.00006163, 0.000119137, 0.00017361, 0.000224521, 0.000272839, 0.000318584, 0.000362552, 0.000404471, 0.000485968, 0.000567724, 0.000652632, 0.000743641], False, 3, [1, 1, 1, 1, 1, 1, 1, 1, 1, 1, 1, 1, 1, 1, 1], False), False)
sketch4.addGeometry(Part.BSplineCurve([App.Vector(5.672453, 2.970853, 0), App.Vector(5.672872, 2.991664, 0), App.Vector(5.673695, 3.032624, 0), App.Vector(5.681851, 3.092625, 0), App.Vector(5.695511, 3.149638, 0), App.Vector(5.714082, 3.203919, 0), App.Vector(5.738122, 3.255378, 0), App.Vector(5.768238, 3.30367, 0), App.Vector(5.802743, 3.34973, 0), App.Vector(5.84306, 3.392205, 0), App.Vector(5.887699, 3.431027, 0), App.Vector(5.937101, 3.4646, 0), App.Vector(5.990369, 3.493269, 0), App.Vector(6.048133, 3.515835, 0), App.Vector(6.109684, 3.53391, 0), App.Vector(6.17541, 3.546635, 0), App.Vector(6.245172, 3.554969, 0), App.Vector(6.293105, 3.555739, 0), App.Vector(6.31762, 3.556134, 0)], [4, 1, 1, 1, 1, 1, 1, 1, 1, 1, 1, 1, 1, 1, 1, 1, 4], [0, 0.000062405, 0.000122826, 0.000181227, 0.000238043, 0.000294661, 0.000351205, 0.000408499, 0.000467023, 0.000526555, 0.000585634, 0.000645847, 0.000707641, 0.000771331, 0.000838045, 0.00090827, 0.00098178], False, 3, [1, 1, 1, 1, 1, 1, 1, 1, 1, 1, 1, 1, 1, 1, 1, 1, 1, 1, 1], False), False)
sketch4.addGeometry(Part.BSplineCurve([App.Vector(6.287986, 2.370756, 0), App.Vector(6.265727, 2.371129, 0), App.Vector(6.222087, 2.371861, 0), App.Vector(6.158399, 2.380576, 0), App.Vector(6.097614, 2.3922, 0), App.Vector(6.040354, 2.410732, 0), App.Vector(5.985786, 2.433057, 0), App.Vector(5.935164, 2.462073, 0), App.Vector(5.886974, 2.494742, 0), App.Vector(5.842831, 2.53302, 0), App.Vector(5.802786, 2.575337, 0), App.Vector(5.767882, 2.621555, 0), App.Vector(5.738004, 2.671092, 0), App.Vector(5.713956, 2.724406, 0), App.Vector(5.695436, 2.781179, 0), App.Vector(5.681801, 2.841283, 0), App.Vector(5.67368, 2.904981, 0), App.Vector(5.672868, 2.948604, 0), App.Vector(5.672453, 2.970853, 0)], [4, 1, 1, 1, 1, 1, 1, 1, 1, 1, 1, 1, 1, 1, 1, 1, 4], [0, 0.000066723, 0.000130818, 0.000192569, 0.000252123, 0.00031106, 0.000369107, 0.000426819, 0.00048548, 0.000544005, 0.000601299, 0.000658898, 0.000717197, 0.000776353, 0.000837761, 0.000901856, 0.000968579], False, 3, [1, 1, 1, 1, 1, 1, 1, 1, 1, 1, 1, 1, 1, 1, 1, 1, 1, 1, 1], False), False)
sketch4.addGeometry(Part.BSplineCurve([App.Vector(6.976369, 2.980731, 0), App.Vector(6.975714, 2.959101, 0), App.Vector(6.974422, 2.91649, 0), App.Vector(6.966107, 2.854035, 0), App.Vector(6.950185, 2.794804, 0), App.Vector(6.929065, 2.738398, 0), App.Vector(6.90294, 2.684189, 0), App.Vector(6.868708, 2.634148, 0), App.Vector(6.829916, 2.586181, 0), App.Vector(6.784911, 2.542209, 0), App.Vector(6.735567, 2.502043, 0), App.Vector(6.682349, 2.466652, 0), App.Vector(6.62523, 2.436849, 0), App.Vector(6.564448, 2.413024, 0), App.Vector(6.500533, 2.393554, 0), App.Vector(6.432913, 2.38018, 0), App.Vector(6.361661, 2.37195, 0), App.Vector(6.31291, 2.37116, 0), App.Vector(6.287986, 2.370756, 0)], [4, 1, 1, 1, 1, 1, 1, 1, 1, 1, 1, 1, 1, 1, 1, 1, 4], [0, 0.000064899, 0.000127851, 0.000188499, 0.000248475, 0.000308389, 0.000368492, 0.000429914, 0.000493217, 0.000556855, 0.000620554, 0.000684619, 0.000749738, 0.000816146, 0.000884798, 0.000956249, 0.001030994], False, 3, [1, 1, 1, 1, 1, 1, 1, 1, 1, 1, 1, 1, 1, 1, 1, 1, 1, 1, 1], False), False)
sketch4.addGeometry(Part.BSplineCurve([App.Vector(6.31762, 3.556134, 0), App.Vector(6.342335, 3.555689, 0), App.Vector(6.390441, 3.554824, 0), App.Vector(6.460627, 3.547246, 0), App.Vector(6.526722, 3.535052, 0), App.Vector(6.589105, 3.517938, 0), App.Vector(6.647115, 3.494696, 0), App.Vector(6.702107, 3.467772, 0), App.Vector(6.752556, 3.434846, 0), App.Vector(6.799141, 3.397695, 0), App.Vector(6.840811, 3.356773, 0), App.Vector(6.877143, 3.312209, 0), App.Vector(6.908288, 3.264839, 0), App.Vector(6.932776, 3.213526, 0), App.Vector(6.952955, 3.159957, 0), App.Vector(6.966142, 3.102846, 0), App.Vector(6.975381, 3.042978, 0), App.Vector(6.976035, 3.00176, 0), App.Vector(6.976369, 2.980731, 0)], [4, 1, 1, 1, 1, 1, 1, 1, 1, 1, 1, 1, 1, 1, 1, 1, 4], [0, 0.000074127, 0.000144284, 0.000211488, 0.000275601, 0.000337969, 0.000398712, 0.000458991, 0.000518289, 0.000577226, 0.000633827, 0.000690509, 0.000746836, 0.000804067, 0.000861867, 0.000922374, 0.000985396], False, 3, [1, 1, 1, 1, 1, 1, 1, 1, 1, 1, 1, 1, 1, 1, 1, 1, 1, 1, 1], False), False)
sketch4.addConstraint(Sketcher.Constraint("Block", 3))
sketch4.addConstraint(Sketcher.Constraint("Block", 5))
sketch4.addConstraint(Sketcher.Constraint("Block", 7))
sketch4.addConstraint(Sketcher.Constraint("Block", 8))
sketch4.addConstraint(Sketcher.Constraint("Block", 9))
sketch4.addConstraint(Sketcher.Constraint("Block", 10))
sketch4.addConstraint(Sketcher.Constraint("Block", 11))
sketch4.addConstraint(Sketcher.Constraint("Block", 12))
sketch4.addConstraint(Sketcher.Constraint("Block", 13))
sketch4.addConstraint(Sketcher.Constraint("Block", 14))
sketch4.addConstraint(Sketcher.Constraint("Block", 15))
sketch4.addConstraint(Sketcher.Constraint("Block", 16))
sketch4.addConstraint(Sketcher.Constraint("Block", 22))
sketch4.addConstraint(Sketcher.Constraint("Block", 23))
sketch4.addConstraint(Sketcher.Constraint("Block", 24))
sketch4.addConstraint(Sketcher.Constraint("Block", 25))
sketch4.addConstraint(Sketcher.Constraint("Block", 26))
sketch4.addConstraint(Sketcher.Constraint("Block", 27))
sketch4.addConstraint(Sketcher.Constraint("Block", 28))
sketch4.addConstraint(Sketcher.Constraint("Block", 29))
sketch4.addConstraint(Sketcher.Constraint("Block", 30))
sketch4.addConstraint(Sketcher.Constraint("Block", 31))
sketch4.addConstraint(Sketcher.Constraint("Block", 32))
sketch4.addConstraint(Sketcher.Constraint("Block", 33))
sketch4.addConstraint(Sketcher.Constraint("Block", 34))
sketch4.addConstraint(Sketcher.Constraint("Coincident", 0, 2, 1, 1))
sketch4.addConstraint(Sketcher.Constraint("Coincident", 1, 2, 2, 1))
sketch4.addConstraint(Sketcher.Constraint("Coincident", 2, 2, 3, 2))
sketch4.addConstraint(Sketcher.Constraint("Coincident", 3, 1, 4, 1))
sketch4.addConstraint(Sketcher.Constraint("Coincident", 4, 2, 5, 2))
sketch4.addConstraint(Sketcher.Constraint("Coincident", 5, 1, 6, 1))
sketch4.addConstraint(Sketcher.Constraint("Coincident", 6, 2, 0, 1))
sketch4.addConstraint(Sketcher.Constraint("Coincident", 17, 2, 18, 1))
sketch4.addConstraint(Sketcher.Constraint("Coincident", 18, 2, 19, 1))
sketch4.addConstraint(Sketcher.Constraint("Coincident", 19, 2, 20, 1))
sketch4.addConstraint(Sketcher.Constraint("Coincident", 20, 2, 17, 1))
sketch4.addConstraint(Sketcher.Constraint("Coincident", 21, 2, 22, 2))
sketch4.addConstraint(Sketcher.Constraint("Coincident", 30, 1, 21, 1))
sketch4.addConstraint(Sketcher.Constraint("Vertical", 0))
sketch4.addConstraint(Sketcher.Constraint("Horizontal", 1))
sketch4.addConstraint(Sketcher.Constraint("Vertical", 2))
sketch4.addConstraint(Sketcher.Constraint("Horizontal", 6))
sketch4.addConstraint(Sketcher.Constraint("Horizontal", 17))
sketch4.addConstraint(Sketcher.Constraint("Vertical", 18))
sketch4.addConstraint(Sketcher.Constraint("Horizontal", 19))
sketch4.addConstraint(Sketcher.Constraint("Vertical", 20))
sketch4.addConstraint(Sketcher.Constraint("Vertical", 6, 2, 17, 2))
sketch4.addConstraint(Sketcher.Constraint("Equal", 19, 0))
sketch4.addConstraint(Sketcher.Constraint("Equal", 0, 18))
sketch4.addConstraint(Sketcher.Constraint("DistanceX", -1, 1, 0, 2, 4.25))
sketch4.addConstraint(Sketcher.Constraint("DistanceY", 19, 2, 21, 2, 0.632202))
sketch4.addConstraint(Sketcher.Constraint("DistanceX", 17, 2, 17, 1, 0.395126))
pocket2 = body.newObject("PartDesign::Pocket", "Pocket001")
pocket2.Profile = sketch4
pocket2.Length = 0.25
pocket2.Reversed = True

doc.recompute()
